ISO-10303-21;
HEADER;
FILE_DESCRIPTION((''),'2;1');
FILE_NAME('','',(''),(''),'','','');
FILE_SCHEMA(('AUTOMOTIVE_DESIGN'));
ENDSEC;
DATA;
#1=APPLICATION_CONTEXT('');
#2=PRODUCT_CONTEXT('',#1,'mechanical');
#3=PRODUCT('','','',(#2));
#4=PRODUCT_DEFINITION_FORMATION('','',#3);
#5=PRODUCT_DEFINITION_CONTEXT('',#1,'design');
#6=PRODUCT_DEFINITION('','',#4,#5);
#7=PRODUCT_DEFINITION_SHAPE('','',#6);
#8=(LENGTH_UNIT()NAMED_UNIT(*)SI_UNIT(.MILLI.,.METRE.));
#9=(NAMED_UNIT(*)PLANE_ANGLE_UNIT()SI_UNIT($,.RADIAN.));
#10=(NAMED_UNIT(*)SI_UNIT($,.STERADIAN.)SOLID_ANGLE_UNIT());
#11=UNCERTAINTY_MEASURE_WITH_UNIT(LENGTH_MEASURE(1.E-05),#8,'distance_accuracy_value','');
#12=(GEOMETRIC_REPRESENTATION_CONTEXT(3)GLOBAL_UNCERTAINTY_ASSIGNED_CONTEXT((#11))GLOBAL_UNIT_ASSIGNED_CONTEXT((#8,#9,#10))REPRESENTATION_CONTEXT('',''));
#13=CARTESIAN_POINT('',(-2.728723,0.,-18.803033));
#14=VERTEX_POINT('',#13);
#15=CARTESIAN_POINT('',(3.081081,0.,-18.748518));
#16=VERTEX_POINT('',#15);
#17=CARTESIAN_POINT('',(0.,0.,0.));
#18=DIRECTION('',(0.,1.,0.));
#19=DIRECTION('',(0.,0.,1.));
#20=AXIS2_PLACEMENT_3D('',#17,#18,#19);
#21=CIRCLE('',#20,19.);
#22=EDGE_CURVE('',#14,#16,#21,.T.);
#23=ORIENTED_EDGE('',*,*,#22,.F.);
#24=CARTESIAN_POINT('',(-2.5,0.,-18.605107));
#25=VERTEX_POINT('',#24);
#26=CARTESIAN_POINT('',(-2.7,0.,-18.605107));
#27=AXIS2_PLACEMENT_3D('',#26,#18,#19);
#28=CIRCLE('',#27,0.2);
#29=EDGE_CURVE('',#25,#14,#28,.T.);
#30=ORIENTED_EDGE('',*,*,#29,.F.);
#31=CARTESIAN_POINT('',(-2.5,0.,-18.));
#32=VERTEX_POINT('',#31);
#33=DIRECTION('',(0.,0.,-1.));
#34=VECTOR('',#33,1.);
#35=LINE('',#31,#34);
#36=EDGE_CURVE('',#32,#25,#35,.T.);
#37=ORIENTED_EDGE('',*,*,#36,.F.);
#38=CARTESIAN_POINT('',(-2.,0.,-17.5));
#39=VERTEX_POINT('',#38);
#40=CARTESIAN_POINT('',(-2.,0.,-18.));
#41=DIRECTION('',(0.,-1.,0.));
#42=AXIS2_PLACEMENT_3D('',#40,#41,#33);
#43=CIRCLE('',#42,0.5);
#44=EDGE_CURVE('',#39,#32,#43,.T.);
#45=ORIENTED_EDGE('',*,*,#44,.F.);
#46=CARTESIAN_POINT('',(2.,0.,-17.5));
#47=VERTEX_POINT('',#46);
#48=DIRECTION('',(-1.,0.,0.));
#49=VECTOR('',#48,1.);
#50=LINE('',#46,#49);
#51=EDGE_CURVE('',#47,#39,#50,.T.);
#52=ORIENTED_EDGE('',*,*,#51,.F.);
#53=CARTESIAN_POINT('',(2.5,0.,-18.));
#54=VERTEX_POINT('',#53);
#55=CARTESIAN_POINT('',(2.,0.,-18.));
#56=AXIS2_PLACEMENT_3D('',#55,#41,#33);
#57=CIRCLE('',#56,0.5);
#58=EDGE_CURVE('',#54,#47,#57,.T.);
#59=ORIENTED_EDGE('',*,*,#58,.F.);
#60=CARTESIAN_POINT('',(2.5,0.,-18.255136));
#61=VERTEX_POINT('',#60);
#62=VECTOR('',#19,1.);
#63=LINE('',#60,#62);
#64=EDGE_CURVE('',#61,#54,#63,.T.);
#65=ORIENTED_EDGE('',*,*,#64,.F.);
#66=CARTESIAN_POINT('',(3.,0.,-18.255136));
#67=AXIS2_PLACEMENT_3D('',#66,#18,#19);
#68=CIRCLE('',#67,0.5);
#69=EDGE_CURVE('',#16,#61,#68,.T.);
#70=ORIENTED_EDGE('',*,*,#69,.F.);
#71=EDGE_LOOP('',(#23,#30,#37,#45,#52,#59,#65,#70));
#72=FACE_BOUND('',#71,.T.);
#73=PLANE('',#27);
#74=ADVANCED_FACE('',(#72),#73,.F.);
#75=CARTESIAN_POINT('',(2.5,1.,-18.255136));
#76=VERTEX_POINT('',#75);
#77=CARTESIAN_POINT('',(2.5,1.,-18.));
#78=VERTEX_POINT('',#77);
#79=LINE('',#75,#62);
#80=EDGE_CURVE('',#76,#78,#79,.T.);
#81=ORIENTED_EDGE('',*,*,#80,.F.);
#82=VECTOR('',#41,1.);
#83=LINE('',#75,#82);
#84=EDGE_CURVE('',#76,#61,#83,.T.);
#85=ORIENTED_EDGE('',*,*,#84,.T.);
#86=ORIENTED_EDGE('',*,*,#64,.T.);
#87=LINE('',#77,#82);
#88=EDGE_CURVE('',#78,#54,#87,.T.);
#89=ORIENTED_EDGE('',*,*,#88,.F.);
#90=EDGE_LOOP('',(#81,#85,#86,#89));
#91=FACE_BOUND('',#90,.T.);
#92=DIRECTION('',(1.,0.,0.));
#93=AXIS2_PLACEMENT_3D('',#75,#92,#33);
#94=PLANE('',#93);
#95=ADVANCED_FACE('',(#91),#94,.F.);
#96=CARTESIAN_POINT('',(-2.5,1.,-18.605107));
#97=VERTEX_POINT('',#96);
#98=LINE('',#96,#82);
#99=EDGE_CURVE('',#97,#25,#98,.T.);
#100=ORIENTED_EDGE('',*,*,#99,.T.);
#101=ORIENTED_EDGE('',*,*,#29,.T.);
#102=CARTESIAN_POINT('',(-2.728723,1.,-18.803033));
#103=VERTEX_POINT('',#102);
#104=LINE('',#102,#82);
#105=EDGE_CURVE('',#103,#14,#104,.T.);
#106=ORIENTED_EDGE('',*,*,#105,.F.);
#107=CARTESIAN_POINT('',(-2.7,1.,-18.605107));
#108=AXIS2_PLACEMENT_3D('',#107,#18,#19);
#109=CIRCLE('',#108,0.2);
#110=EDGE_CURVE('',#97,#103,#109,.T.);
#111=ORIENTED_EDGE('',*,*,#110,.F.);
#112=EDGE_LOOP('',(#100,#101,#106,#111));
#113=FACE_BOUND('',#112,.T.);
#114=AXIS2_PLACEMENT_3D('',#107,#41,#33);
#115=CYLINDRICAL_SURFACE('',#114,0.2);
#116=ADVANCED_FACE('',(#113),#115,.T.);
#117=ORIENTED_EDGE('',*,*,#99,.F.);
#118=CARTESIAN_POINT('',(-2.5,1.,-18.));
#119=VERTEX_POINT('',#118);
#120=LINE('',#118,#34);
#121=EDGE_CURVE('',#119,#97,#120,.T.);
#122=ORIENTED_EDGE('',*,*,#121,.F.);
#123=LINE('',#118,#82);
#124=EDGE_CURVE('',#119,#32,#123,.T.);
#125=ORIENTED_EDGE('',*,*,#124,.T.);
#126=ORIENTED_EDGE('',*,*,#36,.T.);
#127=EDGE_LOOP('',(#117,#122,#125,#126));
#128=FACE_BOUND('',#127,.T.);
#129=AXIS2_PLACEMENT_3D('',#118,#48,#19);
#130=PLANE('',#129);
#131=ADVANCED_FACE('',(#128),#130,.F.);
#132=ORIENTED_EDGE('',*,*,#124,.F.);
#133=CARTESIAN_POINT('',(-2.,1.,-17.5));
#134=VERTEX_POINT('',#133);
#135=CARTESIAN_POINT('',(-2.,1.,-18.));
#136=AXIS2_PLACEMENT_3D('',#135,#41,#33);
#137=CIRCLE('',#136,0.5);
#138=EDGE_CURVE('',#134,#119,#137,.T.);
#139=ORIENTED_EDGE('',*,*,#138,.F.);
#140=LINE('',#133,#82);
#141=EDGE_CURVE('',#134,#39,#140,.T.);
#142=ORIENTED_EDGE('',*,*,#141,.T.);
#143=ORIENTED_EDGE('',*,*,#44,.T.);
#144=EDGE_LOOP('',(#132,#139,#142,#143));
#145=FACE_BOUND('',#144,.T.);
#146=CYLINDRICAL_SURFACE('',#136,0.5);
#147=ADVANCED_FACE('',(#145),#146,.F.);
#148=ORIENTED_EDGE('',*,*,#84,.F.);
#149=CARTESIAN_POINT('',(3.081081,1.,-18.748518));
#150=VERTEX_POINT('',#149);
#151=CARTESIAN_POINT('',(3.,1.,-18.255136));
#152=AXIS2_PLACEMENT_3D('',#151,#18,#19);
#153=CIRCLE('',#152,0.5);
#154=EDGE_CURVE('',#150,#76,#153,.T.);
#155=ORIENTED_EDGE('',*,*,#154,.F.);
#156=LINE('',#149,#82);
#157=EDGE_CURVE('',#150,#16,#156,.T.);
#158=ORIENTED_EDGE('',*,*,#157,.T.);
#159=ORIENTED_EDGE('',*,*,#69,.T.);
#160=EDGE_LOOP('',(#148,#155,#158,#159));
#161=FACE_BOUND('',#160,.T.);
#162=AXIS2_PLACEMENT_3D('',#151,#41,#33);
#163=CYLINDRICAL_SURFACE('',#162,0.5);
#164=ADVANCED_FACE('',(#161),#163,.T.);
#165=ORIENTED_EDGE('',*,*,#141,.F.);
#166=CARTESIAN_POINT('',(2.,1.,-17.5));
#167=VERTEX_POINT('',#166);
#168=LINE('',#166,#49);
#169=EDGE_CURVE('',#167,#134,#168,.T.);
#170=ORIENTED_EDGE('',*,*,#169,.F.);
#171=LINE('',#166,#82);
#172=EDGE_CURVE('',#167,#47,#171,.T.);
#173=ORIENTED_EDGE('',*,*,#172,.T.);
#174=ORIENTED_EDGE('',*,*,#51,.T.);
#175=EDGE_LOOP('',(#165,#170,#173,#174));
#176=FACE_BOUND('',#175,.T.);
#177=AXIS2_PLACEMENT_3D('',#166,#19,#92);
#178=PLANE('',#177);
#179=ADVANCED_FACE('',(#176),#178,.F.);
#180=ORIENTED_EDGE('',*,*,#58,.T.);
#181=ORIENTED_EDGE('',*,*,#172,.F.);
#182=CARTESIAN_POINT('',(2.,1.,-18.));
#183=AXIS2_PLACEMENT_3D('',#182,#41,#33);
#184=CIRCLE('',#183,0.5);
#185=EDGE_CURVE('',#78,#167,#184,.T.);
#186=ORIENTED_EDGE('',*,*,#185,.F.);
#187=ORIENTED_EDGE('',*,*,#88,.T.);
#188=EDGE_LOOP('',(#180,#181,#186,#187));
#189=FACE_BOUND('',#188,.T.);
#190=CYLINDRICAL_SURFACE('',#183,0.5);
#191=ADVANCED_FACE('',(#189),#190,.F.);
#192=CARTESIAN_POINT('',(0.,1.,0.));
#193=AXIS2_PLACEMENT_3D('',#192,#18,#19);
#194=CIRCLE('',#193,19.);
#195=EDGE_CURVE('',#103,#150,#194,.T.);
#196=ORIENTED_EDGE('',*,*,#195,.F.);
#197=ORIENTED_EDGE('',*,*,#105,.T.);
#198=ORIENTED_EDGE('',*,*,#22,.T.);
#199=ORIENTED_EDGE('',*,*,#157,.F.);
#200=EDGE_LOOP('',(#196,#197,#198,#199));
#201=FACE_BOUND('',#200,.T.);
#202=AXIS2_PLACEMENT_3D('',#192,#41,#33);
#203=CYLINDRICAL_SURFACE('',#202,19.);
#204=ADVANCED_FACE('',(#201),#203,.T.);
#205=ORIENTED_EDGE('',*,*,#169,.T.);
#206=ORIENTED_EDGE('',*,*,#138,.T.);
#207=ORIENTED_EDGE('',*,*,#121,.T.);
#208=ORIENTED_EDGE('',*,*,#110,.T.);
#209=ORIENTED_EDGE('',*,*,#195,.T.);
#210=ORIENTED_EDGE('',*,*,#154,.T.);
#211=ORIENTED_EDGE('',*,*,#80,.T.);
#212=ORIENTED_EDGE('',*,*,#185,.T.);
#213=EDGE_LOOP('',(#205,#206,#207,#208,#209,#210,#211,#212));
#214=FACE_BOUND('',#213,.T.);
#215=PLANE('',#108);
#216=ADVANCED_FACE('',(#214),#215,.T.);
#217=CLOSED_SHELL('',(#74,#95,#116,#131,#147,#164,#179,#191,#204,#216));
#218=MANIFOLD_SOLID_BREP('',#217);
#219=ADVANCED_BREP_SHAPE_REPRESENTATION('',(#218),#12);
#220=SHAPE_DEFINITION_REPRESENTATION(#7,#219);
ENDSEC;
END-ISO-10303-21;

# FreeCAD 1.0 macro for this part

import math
import FreeCAD as App
import Part
import Sketcher

V = App.Vector

doc = App.newDocument("Part")
body = doc.addObject("PartDesign::Body", "Body")

sketch1 = body.newObject("Sketcher::SketchObject", "Sketch")
sketch1.AttachmentSupport = (doc.getObject("XZ_Plane"), [""])
sketch1.MapMode = "FlatFace"
sketch1.addGeometry(Part.LineSegment(V(2.5, -18.26, 0), V(2.5, -18, 0)), False)
sketch1.addGeometry(Part.ArcOfCircle(Part.Circle(V(2, -18, 0), V(0, 0, 1), 0.5), math.radians(0), math.radians(90)), False)
sketch1.addGeometry(Part.LineSegment(V(2, -17.5, 0), V(-2, -17.5, 0)), False)
sketch1.addGeometry(Part.ArcOfCircle(Part.Circle(V(-2, -18, 0), V(0, 0, 1), 0.5), math.radians(90), math.radians(180)), False)
sketch1.addGeometry(Part.LineSegment(V(-2.5, -18, 0), V(-2.5, -18.61, 0)), False)
sketch1.addGeometry(Part.ArcOfCircle(Part.Circle(V(-2.7, -18.61, 0), V(0, 0, 1), 0.2), math.radians(-98), math.radians(0)), False)
sketch1.addGeometry(Part.ArcOfCircle(Part.Circle(V(0, 0, 0), V(0, 0, 1), 19), math.radians(-81), math.radians(262)), False)
sketch1.addGeometry(Part.ArcOfCircle(Part.Circle(V(3, -18.26, 0), V(0, 0, 1), 0.5), math.radians(-180), math.radians(-81)), False)
sketch1.addConstraint(Sketcher.Constraint("Tangent", 0, 2, 1, 1))
sketch1.addConstraint(Sketcher.Constraint("Tangent", 1, 2, 2, 1))
sketch1.addConstraint(Sketcher.Constraint("Tangent", 2, 2, 3, 1))
sketch1.addConstraint(Sketcher.Constraint("Tangent", 3, 2, 4, 1))
sketch1.addConstraint(Sketcher.Constraint("Tangent", 4, 2, 5, 2))
sketch1.addConstraint(Sketcher.Constraint("Tangent", 5, 1, 6, 2))
sketch1.addConstraint(Sketcher.Constraint("Tangent", 6, 1, 7, 2))
sketch1.addConstraint(Sketcher.Constraint("Tangent", 7, 1, 0, 1))
sketch1.addConstraint(Sketcher.Constraint("Vertical", 0))
sketch1.addConstraint(Sketcher.Constraint("Horizontal", 2))
sketch1.addConstraint(Sketcher.Constraint("Vertical", 4))
sketch1.addConstraint(Sketcher.Constraint("Coincident", 6, 3, -1, 1))
sketch1.addConstraint(Sketcher.Constraint("Equal", 1, 3))
sketch1.addConstraint(Sketcher.Constraint("Equal", 3, 7))
sketch1.addConstraint(Sketcher.Constraint("Radius", 6, 19.0))
sketch1.addConstraint(Sketcher.Constraint("Radius", 1, 0.5))
sketch1.addConstraint(Sketcher.Constraint("Radius", 5, 0.2))
sketch1.addConstraint(Sketcher.Constraint("DistanceX", 2, 2, 2, 1, 4.0))
sketch1.addConstraint(Sketcher.Constraint("DistanceX", -1, 1, 1, 3, 2.0))
sketch1.addConstraint(Sketcher.Constraint("DistanceY", 1, 3, -1, 1, 18.0))
pad1 = body.newObject("PartDesign::Pad", "Pad")
pad1.Profile = sketch1
pad1.Length = 1
pad1.Reversed = True

doc.recompute()
